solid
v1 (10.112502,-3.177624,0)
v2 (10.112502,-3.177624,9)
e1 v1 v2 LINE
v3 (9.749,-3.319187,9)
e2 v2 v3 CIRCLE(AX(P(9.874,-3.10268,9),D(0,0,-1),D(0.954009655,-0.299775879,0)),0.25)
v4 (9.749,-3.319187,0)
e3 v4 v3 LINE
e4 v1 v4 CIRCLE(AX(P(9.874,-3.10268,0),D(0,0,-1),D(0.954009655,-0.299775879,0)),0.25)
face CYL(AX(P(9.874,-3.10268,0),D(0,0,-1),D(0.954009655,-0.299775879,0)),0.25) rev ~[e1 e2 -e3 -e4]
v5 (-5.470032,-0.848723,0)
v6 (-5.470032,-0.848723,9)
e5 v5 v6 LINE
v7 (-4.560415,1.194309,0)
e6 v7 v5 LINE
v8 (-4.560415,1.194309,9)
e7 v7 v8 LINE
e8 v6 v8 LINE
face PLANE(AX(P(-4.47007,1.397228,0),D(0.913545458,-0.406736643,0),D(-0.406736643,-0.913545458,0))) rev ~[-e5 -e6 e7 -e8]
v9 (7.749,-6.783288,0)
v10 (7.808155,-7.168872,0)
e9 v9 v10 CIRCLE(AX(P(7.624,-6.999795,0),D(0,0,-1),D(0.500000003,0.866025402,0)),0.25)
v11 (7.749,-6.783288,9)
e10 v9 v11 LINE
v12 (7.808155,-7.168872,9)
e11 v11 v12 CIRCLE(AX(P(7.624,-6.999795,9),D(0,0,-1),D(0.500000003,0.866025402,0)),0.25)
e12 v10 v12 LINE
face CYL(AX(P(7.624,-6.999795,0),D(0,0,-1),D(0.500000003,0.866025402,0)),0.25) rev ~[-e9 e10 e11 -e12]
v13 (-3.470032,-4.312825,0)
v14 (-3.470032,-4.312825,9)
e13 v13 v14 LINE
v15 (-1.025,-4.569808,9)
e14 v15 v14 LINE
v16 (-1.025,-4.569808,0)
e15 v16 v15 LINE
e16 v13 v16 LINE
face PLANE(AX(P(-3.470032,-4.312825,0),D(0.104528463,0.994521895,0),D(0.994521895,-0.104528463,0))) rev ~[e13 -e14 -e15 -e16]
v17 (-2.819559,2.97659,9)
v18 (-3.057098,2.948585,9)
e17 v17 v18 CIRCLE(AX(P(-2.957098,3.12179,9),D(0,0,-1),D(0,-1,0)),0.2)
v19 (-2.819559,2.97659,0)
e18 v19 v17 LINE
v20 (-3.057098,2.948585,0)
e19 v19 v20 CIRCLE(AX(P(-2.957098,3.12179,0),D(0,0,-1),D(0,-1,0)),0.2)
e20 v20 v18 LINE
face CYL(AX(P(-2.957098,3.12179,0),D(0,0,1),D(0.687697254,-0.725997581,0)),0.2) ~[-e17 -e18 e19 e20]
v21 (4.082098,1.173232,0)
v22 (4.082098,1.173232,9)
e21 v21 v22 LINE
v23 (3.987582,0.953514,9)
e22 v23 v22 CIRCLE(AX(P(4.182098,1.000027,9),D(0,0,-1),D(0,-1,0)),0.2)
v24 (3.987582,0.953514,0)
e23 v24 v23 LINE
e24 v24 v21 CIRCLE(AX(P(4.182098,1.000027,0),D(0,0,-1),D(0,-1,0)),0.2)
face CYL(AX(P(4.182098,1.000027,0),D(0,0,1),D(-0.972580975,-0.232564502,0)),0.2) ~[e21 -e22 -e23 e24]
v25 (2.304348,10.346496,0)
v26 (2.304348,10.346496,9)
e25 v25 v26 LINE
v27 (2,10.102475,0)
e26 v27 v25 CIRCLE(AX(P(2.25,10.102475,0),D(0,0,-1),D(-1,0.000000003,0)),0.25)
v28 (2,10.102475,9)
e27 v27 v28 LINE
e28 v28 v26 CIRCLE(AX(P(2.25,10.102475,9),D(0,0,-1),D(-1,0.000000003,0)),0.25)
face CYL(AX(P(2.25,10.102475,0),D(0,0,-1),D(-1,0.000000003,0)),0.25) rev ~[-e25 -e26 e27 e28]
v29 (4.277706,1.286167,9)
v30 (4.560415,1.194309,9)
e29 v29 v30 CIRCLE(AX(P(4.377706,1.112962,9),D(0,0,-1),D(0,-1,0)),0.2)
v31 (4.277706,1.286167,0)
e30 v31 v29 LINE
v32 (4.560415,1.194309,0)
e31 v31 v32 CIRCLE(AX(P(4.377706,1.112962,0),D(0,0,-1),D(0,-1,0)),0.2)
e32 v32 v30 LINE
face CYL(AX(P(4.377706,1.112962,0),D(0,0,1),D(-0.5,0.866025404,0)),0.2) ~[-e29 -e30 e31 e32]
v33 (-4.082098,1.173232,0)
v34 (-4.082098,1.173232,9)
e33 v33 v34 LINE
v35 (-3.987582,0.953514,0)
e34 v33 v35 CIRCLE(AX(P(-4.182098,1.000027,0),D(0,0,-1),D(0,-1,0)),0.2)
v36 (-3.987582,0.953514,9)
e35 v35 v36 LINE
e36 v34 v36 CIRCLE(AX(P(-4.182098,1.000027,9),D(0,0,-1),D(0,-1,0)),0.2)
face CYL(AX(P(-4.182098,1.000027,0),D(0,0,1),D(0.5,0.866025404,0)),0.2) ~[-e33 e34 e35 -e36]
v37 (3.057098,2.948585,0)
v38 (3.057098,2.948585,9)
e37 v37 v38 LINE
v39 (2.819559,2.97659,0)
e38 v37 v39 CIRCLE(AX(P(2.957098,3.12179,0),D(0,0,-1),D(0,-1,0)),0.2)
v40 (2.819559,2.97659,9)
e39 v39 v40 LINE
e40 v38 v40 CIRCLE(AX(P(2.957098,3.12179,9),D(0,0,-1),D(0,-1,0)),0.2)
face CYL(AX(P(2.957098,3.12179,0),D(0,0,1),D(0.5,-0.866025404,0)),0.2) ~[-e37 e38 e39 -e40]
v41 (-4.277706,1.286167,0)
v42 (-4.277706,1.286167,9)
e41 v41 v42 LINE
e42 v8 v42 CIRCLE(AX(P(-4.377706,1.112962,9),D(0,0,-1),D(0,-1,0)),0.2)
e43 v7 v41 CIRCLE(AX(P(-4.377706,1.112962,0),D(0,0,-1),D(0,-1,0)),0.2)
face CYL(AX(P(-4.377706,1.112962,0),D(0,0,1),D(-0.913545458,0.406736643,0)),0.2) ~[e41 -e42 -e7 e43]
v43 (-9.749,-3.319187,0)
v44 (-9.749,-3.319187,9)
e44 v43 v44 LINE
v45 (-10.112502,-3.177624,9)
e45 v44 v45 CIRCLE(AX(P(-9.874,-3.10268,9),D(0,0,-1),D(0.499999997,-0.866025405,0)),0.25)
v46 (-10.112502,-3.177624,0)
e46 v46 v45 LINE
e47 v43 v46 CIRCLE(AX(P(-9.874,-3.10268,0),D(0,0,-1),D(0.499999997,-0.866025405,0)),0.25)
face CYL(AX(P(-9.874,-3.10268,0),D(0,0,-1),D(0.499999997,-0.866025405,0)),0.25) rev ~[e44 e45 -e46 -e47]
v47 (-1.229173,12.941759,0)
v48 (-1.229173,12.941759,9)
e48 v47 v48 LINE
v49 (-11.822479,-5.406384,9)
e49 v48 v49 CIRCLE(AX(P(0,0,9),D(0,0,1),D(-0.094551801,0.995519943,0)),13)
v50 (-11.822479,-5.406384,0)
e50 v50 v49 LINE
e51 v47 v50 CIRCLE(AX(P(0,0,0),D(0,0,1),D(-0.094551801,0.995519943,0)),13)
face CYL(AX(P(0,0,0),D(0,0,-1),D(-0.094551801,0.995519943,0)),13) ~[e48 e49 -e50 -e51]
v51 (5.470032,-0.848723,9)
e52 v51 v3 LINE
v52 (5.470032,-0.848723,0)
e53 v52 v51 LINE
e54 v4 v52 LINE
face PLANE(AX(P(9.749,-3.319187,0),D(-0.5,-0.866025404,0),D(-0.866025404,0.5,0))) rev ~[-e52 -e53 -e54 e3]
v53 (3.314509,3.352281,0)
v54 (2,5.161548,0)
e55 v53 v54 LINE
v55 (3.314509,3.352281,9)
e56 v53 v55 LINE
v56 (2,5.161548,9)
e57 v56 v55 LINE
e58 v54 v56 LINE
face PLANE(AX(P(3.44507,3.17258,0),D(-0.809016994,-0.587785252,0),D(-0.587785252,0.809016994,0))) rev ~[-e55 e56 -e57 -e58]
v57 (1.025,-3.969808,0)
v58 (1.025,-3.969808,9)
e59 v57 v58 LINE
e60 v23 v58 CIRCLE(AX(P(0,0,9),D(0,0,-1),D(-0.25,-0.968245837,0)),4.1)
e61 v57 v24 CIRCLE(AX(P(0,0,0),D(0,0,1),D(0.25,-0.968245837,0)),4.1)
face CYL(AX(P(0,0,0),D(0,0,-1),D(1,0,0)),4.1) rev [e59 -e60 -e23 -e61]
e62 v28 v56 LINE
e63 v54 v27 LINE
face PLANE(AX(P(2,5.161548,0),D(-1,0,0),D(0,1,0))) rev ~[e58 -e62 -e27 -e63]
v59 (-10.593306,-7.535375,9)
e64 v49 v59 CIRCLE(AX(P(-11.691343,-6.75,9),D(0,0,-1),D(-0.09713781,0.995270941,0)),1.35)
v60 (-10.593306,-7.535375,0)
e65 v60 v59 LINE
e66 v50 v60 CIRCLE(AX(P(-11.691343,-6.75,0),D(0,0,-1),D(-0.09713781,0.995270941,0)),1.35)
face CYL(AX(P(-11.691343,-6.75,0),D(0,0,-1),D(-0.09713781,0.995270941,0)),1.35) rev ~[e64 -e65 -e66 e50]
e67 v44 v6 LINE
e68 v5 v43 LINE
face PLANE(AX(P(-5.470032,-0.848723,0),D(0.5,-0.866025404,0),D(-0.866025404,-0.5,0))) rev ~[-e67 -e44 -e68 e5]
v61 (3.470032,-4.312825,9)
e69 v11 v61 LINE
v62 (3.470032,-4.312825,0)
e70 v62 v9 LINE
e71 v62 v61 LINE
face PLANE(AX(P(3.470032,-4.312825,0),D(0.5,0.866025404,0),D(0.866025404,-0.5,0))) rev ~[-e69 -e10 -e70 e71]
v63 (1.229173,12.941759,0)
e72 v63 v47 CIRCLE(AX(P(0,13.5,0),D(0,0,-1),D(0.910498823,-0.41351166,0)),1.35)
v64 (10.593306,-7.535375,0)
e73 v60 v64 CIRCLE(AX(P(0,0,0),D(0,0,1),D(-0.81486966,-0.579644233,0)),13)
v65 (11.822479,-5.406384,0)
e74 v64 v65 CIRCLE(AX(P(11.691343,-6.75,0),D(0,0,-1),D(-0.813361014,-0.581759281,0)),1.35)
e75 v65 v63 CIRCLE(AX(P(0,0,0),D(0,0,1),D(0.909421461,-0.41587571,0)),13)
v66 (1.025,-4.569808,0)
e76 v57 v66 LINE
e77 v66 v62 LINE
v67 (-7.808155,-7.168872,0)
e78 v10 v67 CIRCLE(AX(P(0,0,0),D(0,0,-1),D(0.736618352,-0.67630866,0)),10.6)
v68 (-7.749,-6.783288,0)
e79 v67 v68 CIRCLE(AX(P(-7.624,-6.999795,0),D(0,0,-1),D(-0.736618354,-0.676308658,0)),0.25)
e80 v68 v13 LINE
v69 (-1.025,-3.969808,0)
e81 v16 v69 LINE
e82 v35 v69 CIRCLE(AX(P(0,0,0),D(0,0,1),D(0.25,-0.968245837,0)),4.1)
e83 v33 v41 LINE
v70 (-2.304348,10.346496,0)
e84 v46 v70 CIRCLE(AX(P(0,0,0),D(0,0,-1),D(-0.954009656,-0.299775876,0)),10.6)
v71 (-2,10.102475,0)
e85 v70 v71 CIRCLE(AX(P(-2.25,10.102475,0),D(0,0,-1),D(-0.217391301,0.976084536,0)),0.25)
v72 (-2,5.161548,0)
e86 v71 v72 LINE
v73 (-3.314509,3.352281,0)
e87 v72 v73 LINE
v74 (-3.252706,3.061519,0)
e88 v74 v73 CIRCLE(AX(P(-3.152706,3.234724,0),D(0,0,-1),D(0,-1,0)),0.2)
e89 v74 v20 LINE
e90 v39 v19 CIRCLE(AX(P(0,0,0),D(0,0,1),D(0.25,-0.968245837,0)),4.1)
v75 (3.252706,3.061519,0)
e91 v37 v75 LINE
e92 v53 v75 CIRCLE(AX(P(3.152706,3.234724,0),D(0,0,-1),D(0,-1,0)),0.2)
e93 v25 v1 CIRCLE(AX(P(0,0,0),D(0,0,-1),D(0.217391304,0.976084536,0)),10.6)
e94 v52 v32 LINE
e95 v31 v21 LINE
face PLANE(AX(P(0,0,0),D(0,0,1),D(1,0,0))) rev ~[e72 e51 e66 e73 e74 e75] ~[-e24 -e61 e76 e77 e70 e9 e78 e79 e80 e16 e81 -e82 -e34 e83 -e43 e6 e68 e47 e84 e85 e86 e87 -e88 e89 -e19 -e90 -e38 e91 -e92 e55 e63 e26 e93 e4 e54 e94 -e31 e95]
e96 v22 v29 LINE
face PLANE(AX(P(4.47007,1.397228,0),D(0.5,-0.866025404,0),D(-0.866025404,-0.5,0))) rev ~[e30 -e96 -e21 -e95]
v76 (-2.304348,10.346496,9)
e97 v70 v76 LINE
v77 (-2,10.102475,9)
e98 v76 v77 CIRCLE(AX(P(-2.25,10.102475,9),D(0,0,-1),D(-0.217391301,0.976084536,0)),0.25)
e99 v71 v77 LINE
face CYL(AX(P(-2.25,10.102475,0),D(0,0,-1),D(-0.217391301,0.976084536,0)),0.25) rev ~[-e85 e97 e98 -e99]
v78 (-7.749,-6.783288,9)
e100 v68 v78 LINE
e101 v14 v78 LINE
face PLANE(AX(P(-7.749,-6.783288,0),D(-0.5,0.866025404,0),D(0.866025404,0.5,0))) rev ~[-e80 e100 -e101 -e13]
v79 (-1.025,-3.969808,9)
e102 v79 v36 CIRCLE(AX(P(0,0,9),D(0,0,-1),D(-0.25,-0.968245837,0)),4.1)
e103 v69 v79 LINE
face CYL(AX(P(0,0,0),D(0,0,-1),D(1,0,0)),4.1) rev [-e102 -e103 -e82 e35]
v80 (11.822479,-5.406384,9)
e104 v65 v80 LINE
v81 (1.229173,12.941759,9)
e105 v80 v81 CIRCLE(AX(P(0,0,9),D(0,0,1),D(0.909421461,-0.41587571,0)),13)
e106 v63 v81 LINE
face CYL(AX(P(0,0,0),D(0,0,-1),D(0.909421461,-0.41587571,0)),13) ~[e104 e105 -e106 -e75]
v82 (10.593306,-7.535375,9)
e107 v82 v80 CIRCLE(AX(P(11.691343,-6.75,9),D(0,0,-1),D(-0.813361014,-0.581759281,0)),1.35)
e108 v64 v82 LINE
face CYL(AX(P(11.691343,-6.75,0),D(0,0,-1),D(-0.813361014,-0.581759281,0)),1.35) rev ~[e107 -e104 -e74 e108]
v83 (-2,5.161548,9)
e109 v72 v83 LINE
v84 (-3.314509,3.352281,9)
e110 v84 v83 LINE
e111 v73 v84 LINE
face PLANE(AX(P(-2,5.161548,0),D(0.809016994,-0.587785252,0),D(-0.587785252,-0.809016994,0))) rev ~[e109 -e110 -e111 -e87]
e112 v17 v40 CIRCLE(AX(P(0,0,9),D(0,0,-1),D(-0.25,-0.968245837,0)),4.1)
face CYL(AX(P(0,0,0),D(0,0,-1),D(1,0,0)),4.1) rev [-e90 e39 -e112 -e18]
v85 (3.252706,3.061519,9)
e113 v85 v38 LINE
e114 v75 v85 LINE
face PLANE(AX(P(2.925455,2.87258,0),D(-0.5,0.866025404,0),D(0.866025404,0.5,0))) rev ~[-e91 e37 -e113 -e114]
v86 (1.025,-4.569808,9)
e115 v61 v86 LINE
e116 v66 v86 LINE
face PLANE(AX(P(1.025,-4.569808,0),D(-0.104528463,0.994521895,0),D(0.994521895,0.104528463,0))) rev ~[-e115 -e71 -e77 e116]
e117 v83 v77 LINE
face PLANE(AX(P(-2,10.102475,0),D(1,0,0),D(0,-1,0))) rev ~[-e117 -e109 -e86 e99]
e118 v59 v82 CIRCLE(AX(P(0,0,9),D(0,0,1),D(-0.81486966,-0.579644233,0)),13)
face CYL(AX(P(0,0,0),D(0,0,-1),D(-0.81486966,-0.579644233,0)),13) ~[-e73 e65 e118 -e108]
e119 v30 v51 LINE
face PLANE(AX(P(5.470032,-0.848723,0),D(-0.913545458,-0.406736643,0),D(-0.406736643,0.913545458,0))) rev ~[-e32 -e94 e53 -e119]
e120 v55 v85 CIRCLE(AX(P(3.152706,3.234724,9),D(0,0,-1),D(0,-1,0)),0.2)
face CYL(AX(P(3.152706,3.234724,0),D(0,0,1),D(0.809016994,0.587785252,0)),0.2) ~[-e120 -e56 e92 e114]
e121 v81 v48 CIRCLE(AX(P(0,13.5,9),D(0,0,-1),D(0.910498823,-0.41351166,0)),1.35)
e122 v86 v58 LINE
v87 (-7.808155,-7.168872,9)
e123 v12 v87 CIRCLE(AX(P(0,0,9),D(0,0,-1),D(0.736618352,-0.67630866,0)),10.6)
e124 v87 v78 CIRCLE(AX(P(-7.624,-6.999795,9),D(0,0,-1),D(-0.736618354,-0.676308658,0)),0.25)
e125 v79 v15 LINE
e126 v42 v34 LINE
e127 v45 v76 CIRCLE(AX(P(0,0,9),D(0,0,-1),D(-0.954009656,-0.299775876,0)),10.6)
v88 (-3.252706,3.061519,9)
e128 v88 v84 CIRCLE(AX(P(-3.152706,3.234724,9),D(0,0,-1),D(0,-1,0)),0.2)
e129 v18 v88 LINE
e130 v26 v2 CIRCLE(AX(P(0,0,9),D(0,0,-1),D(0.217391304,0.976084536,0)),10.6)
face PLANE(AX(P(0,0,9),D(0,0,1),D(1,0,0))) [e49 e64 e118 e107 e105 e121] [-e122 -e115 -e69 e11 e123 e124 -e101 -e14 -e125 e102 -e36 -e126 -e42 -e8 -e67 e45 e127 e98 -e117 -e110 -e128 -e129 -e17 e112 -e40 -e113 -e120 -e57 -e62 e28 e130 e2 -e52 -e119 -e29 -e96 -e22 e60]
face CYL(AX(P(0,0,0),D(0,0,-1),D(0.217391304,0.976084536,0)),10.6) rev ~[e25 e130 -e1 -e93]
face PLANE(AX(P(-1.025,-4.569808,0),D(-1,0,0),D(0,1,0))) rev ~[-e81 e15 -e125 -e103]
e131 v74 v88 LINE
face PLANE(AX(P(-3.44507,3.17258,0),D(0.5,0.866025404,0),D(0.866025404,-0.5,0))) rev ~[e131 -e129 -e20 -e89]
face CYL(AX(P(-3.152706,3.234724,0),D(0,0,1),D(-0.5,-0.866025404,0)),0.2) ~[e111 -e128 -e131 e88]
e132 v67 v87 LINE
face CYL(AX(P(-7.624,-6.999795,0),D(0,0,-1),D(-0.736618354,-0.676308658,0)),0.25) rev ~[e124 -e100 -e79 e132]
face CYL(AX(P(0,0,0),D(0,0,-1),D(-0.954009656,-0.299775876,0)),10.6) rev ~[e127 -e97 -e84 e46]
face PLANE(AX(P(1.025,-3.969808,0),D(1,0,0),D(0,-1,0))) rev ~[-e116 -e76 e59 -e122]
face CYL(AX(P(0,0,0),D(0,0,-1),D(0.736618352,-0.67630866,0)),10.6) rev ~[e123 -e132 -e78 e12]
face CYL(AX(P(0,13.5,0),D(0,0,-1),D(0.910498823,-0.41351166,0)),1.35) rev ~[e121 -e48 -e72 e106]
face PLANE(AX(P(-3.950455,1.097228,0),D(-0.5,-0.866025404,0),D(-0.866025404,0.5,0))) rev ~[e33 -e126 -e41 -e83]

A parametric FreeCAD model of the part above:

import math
import FreeCAD as App
import Part
import Sketcher
from FreeCAD import Vector
Q = App.Units.Quantity


def edges_at(feature, points):
    """Names of the edges that pass closest to the given points."""
    edges = feature.Shape.Edges
    near = lambda p: min(range(len(edges)), key=lambda i: edges[i].distToShape(Part.Vertex(*p))[0])
    return sorted({f"Edge{near(p) + 1}" for p in points})

doc = App.newDocument("Part")
body = doc.addObject("PartDesign::Body", "Body")

# Sketch on XY plane
sketch1 = body.newObject("Sketcher::SketchObject", "Sketch")
sketch1.AttachmentSupport = (doc.getObject("XY_Plane"), [""])
sketch1.MapMode = "FlatFace"
sketch1.addGeometry([
    Part.ArcOfCircle(Part.Circle(Vector(0, 0, 0), Vector(0, 0, 1), 13), math.radians(95), math.radians(205)),  # 0
    Part.ArcOfCircle(Part.Circle(Vector(-11.7, -6.8, 0), Vector(0, 0, 1), 1.4), math.radians(-36), math.radians(96)),  # 1
    Part.ArcOfCircle(Part.Circle(Vector(0, 0, 0), Vector(0, 0, 1), 13), math.radians(-145), math.radians(-35)),  # 2
    Part.ArcOfCircle(Part.Circle(Vector(11.7, -6.8, 0), Vector(0, 0, 1), 1.4), math.radians(84), math.radians(216)),  # 3
    Part.ArcOfCircle(Part.Circle(Vector(0, 0, 0), Vector(0, 0, 1), 13), math.radians(-25), math.radians(85)),  # 4
    Part.ArcOfCircle(Part.Circle(Vector(0, 13.5, 0), Vector(0, 0, 1), 1.4), math.radians(-156), math.radians(-24)),  # 5
    Part.Circle(Vector(0, 0, 0), Vector(0, 0, 1), 4.1),  # 6
], False)
sketch1.addConstraint([
    Sketcher.Constraint("Coincident", 0, 2, 1, 2),
    Sketcher.Constraint("Coincident", 1, 1, 2, 1),
    Sketcher.Constraint("Coincident", 2, 2, 3, 2),
    Sketcher.Constraint("Coincident", 3, 1, 4, 1),
    Sketcher.Constraint("Coincident", 4, 2, 5, 2),
    Sketcher.Constraint("Coincident", 5, 1, 0, 1),
    Sketcher.Constraint("Coincident", 0, 3, -1, 1),
    Sketcher.Constraint("Coincident", 2, 3, -1, 1),
    Sketcher.Constraint("Coincident", 4, 3, -1, 1),
    Sketcher.Constraint("Coincident", 6, 3, -1, 1),
    Sketcher.Constraint("Equal", 0, 2),
    Sketcher.Constraint("Equal", 1, 3),
    Sketcher.Constraint("Equal", 2, 4),
    Sketcher.Constraint("Equal", 3, 5),
    Sketcher.Constraint("Symmetric", 1, 3, 3, 3, -2),
    Sketcher.Constraint("PointOnObject", 5, 3, -2),
    Sketcher.Constraint("Radius", 0, 13.0),
    Sketcher.Constraint("Diameter", 6, 8.2),
    Sketcher.Constraint("Radius", 1, 1.35),
    Sketcher.Constraint("DistanceY", -1, 1, 5, 3, 13.5),
    Sketcher.Constraint("DistanceY", 1, 3, -1, 1, 6.75),
    Sketcher.Constraint("DistanceX", 0, 2, -1, 1, 11.822479),
])
pad1 = body.newObject("PartDesign::Pad", "Pad")
pad1.Profile = sketch1
pad1.Length = 9

# Sketch on XY plane
sketch2 = body.newObject("Sketcher::SketchObject", "Sketch001")
sketch2.AttachmentSupport = (doc.getObject("XY_Plane"), [""])
sketch2.MapMode = "FlatFace"
sketch2.addGeometry([
    Part.LineSegment(Vector(-3.47, -4.31, 0), Vector(-7.75, -6.78, 0)),  # 0
    Part.ArcOfCircle(Part.Circle(Vector(-7.62, -7, 0), Vector(0, 0, 1), 0.25), math.radians(120), math.radians(223)),  # 1
    Part.ArcOfCircle(Part.Circle(Vector(0, 0, 0), Vector(0, 0, 1), 10.6), math.radians(-137), math.radians(-43)),  # 2
    Part.ArcOfCircle(Part.Circle(Vector(7.62, -7, 0), Vector(0, 0, 1), 0.25), math.radians(-43), math.radians(60)),  # 3
    Part.LineSegment(Vector(7.75, -6.78, 0), Vector(3.47, -4.31, 0)),  # 4
    Part.LineSegment(Vector(3.47, -4.31, 0), Vector(1.02, -4.57, 0)),  # 5
    Part.LineSegment(Vector(1.02, -4.57, 0), Vector(1.02, -3.97, 0)),  # 6
    Part.ArcOfCircle(Part.Circle(Vector(0, 0, 0), Vector(0, 0, 1), 4.1), math.radians(-104), math.radians(-76)),  # 7
    Part.LineSegment(Vector(-1.02, -3.97, 0), Vector(-1.02, -4.57, 0)),  # 8
    Part.LineSegment(Vector(-1.02, -4.57, 0), Vector(-3.47, -4.31, 0)),  # 9
], False)
sketch2.addConstraint([
    Sketcher.Constraint("Tangent", 0, 2, 1, 1),
    Sketcher.Constraint("Tangent", 1, 2, 2, 1),
    Sketcher.Constraint("Tangent", 2, 2, 3, 1),
    Sketcher.Constraint("Tangent", 3, 2, 4, 1),
    Sketcher.Constraint("Coincident", 4, 2, 5, 1),
    Sketcher.Constraint("Coincident", 5, 2, 6, 1),
    Sketcher.Constraint("Coincident", 6, 2, 7, 2),
    Sketcher.Constraint("Coincident", 7, 1, 8, 1),
    Sketcher.Constraint("Coincident", 8, 2, 9, 1),
    Sketcher.Constraint("Coincident", 9, 2, 0, 1),
    Sketcher.Constraint("Vertical", 6),
    Sketcher.Constraint("Vertical", 8),
    Sketcher.Constraint("Coincident", 2, 3, -1, 1),
    Sketcher.Constraint("Coincident", 7, 3, -1, 1),
    Sketcher.Constraint("Equal", 1, 3),
    Sketcher.Constraint("Symmetric", 0, 2, 3, 2, -2),
    Sketcher.Constraint("Symmetric", 5, 2, 8, 2, -2),
    Sketcher.Constraint("Horizontal", 4, 2, 9, 2),
    Sketcher.Constraint("Radius", 2, 10.6),
    Sketcher.Constraint("Radius", 7, 4.1),
    Sketcher.Constraint("Angle", 0, Q("-150 deg")),
    Sketcher.Constraint("Angle", 5, Q("-174 deg")),
    Sketcher.Constraint("Radius", 1, 0.25),
    Sketcher.Constraint("DistanceY", 6, 1, 6, 2, 0.6),
    Sketcher.Constraint("DistanceX", 7, 1, 6, 2, 2.05),
    Sketcher.Constraint("DistanceX", 1, 3, -1, 1, 7.624),
])
pocket1 = body.newObject("PartDesign::Pocket", "Pocket")
pocket1.Profile = sketch2
pocket1.Length = 10
pocket1.Reversed = True
doc.recompute()

polarpattern = body.newObject("PartDesign::PolarPattern", "PolarPattern")
polarpattern.Originals = [pocket1]
polarpattern.Axis = (doc.getObject("Z_Axis"), [""])
polarpattern.Angle = 360
polarpattern.Occurrences = 3
body.Tip = polarpattern
doc.recompute()

fillet = body.newObject("PartDesign::Fillet", "Fillet")
fillet.Base = (polarpattern, edges_at(polarpattern, [
    (-4.47, 1.397, 4.5),
    (-3.445, 3.173, 4.5),
    (-2.925, 2.873, 4.5),
    (-3.95, 1.097, 4.5),
    (3.95, 1.097, 4.5),
    (2.925, 2.873, 4.5),
    (3.445, 3.173, 4.5),
    (4.47, 1.397, 4.5),
]))
fillet.Radius = 0.2

doc.recompute()
